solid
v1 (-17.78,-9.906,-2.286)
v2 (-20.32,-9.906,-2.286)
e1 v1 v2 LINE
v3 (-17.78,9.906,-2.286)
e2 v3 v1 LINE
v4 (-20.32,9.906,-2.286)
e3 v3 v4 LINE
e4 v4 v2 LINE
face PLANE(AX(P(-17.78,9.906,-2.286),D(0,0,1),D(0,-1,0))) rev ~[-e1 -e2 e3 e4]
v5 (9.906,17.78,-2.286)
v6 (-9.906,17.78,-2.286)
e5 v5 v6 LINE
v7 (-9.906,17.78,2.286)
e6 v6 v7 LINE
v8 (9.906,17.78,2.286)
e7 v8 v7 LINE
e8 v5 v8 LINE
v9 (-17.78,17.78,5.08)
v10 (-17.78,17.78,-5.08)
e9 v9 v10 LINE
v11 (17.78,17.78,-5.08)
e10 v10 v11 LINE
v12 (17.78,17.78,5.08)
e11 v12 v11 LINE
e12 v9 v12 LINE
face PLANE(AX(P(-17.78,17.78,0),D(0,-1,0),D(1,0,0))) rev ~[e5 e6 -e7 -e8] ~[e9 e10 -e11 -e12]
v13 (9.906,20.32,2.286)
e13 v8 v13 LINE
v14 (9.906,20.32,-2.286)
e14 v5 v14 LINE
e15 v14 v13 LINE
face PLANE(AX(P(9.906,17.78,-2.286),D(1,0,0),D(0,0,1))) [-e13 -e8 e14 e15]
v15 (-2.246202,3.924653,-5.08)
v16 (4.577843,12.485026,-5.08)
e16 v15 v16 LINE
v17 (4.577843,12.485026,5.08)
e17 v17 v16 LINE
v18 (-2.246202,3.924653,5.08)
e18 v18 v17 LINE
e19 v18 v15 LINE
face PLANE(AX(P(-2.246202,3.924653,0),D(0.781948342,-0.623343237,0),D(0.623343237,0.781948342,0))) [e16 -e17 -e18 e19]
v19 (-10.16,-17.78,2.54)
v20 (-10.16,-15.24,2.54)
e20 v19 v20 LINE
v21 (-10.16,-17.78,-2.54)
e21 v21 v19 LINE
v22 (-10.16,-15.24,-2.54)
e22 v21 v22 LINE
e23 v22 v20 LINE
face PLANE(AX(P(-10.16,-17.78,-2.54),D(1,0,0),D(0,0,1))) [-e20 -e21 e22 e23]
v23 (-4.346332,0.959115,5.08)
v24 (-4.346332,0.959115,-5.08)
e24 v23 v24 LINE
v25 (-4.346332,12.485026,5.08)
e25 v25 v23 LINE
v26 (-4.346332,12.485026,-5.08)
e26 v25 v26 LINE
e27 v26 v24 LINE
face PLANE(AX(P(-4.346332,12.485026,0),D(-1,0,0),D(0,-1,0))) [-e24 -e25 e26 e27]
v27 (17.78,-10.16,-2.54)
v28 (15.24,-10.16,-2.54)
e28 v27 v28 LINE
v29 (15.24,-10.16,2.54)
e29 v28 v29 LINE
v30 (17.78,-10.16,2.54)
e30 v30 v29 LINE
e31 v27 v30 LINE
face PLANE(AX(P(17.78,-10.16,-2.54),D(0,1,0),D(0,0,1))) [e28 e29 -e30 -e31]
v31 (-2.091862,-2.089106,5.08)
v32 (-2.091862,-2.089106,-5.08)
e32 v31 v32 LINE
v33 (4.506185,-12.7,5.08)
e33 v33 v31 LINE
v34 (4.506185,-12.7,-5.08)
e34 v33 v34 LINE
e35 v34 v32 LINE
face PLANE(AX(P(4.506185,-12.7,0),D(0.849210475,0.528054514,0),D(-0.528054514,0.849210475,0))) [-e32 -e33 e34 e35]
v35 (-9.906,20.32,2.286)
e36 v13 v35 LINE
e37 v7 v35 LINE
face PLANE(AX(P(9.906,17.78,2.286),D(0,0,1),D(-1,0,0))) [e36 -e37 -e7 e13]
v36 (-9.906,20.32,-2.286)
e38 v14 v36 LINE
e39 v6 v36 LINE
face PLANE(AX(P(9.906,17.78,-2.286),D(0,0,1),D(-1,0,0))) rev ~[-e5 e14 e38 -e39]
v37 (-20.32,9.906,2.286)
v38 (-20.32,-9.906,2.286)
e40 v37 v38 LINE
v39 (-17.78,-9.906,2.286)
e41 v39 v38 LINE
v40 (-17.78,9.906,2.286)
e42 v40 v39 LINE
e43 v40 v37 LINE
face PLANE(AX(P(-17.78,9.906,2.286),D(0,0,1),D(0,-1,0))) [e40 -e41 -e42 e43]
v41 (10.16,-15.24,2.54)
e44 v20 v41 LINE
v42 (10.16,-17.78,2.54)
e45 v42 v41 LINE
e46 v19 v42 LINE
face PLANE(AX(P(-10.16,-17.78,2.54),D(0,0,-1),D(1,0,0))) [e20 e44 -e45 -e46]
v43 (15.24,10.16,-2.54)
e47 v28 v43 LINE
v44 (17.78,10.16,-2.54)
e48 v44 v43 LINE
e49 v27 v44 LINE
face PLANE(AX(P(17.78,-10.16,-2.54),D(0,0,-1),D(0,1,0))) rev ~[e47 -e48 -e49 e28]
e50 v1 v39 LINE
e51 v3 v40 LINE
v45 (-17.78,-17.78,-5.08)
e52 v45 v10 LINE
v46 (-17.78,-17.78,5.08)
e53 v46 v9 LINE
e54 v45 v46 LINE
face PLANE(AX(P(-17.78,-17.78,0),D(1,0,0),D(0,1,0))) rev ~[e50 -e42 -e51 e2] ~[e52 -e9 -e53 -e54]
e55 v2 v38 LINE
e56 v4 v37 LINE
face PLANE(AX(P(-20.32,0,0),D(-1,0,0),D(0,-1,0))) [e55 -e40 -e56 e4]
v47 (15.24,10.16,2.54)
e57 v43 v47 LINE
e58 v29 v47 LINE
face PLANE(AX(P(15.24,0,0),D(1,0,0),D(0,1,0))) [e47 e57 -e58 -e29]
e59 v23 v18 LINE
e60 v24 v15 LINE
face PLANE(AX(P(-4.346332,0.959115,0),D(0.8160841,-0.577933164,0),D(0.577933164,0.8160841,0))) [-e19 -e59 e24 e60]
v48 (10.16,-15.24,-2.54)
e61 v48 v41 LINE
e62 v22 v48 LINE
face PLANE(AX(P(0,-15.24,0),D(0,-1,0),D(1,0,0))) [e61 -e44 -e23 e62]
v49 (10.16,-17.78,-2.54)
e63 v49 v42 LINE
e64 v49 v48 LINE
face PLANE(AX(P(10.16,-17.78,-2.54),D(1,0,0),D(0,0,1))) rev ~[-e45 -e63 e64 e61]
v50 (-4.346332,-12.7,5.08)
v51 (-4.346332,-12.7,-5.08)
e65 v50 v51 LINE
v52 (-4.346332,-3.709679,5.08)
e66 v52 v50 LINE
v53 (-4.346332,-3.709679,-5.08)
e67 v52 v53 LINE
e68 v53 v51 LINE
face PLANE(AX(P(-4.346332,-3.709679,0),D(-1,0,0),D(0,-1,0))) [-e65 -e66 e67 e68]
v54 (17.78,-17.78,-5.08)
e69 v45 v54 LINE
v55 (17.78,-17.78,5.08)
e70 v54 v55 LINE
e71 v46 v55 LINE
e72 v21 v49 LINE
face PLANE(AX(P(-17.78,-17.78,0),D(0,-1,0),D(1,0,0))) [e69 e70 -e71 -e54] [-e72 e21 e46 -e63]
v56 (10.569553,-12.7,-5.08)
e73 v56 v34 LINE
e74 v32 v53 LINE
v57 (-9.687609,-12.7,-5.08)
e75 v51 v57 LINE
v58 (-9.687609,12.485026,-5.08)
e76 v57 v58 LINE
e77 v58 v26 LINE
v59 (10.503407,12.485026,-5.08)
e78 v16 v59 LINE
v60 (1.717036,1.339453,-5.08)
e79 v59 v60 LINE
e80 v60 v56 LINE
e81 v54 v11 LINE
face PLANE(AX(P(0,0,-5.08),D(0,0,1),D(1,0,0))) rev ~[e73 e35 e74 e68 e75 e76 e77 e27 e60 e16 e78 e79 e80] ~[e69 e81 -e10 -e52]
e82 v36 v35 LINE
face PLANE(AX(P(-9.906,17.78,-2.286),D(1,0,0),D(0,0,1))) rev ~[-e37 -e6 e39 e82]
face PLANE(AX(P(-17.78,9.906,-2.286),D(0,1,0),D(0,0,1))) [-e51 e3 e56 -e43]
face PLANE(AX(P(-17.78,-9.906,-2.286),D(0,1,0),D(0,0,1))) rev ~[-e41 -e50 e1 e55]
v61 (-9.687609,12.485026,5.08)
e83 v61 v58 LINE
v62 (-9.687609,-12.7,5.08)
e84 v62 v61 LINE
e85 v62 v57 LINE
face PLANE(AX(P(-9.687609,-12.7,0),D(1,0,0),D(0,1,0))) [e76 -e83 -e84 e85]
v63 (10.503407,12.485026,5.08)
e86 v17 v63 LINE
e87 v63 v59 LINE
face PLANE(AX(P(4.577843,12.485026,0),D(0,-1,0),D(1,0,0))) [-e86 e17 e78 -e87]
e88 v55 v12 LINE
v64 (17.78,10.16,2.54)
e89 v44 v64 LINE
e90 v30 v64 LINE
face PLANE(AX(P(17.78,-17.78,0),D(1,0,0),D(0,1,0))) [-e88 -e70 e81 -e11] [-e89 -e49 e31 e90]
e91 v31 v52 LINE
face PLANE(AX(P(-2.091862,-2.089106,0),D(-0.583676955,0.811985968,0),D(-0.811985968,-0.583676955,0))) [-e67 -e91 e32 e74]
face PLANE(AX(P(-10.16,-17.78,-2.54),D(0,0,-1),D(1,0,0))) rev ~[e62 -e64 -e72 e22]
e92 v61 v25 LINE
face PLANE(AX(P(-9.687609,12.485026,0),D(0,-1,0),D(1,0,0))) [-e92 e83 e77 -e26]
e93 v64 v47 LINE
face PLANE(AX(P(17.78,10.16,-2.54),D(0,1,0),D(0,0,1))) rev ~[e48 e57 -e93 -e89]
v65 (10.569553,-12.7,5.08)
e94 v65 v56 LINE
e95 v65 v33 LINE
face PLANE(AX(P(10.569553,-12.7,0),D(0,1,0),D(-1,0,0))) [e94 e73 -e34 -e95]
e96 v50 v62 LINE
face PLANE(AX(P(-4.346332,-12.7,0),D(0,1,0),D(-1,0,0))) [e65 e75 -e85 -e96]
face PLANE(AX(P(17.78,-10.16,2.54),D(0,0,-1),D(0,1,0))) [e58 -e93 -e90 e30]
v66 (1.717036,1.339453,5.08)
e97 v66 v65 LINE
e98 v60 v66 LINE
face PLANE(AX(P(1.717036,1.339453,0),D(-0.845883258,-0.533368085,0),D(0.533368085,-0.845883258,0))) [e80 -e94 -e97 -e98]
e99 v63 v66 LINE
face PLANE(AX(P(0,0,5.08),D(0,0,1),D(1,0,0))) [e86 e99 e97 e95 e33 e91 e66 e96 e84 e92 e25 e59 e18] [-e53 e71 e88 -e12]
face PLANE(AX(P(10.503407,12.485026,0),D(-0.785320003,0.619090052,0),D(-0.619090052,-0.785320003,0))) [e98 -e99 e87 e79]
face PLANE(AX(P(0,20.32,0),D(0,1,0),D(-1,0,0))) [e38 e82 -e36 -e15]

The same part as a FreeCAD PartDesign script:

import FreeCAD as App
import Part
import Sketcher
from FreeCAD import Vector
Q = App.Units.Quantity


def add_polygon(sketch, points):
    """Adds a closed chain of lines whose ends are joined by coincident constraints."""
    first, n = sketch.GeometryCount, len(points)
    for a, b in zip(points, points[1:] + points[:1]):
        sketch.addGeometry(Part.LineSegment(App.Vector(*a, 0), App.Vector(*b, 0)), False)
    for i in range(n):
        sketch.addConstraint(Sketcher.Constraint("Coincident", first + i, 2, first + (i + 1) % n, 1))

doc = App.newDocument("Part")
params = doc.addObject("Spreadsheet::Sheet", "Params")
for row, (alias, value) in enumerate([
    ("sketch1_width", "1.4 in"),
    ("pad1_length", "0.4 in"),
    ("sketch2_width", "0.78 in"),
    ("sketch2_height", "0.18 in"),
    ("pad2_length", "0.1 in"),
    ("sketch3_width", "0.78 in"),
    ("sketch3_height", "0.18 in"),
    ("pad3_length", "0.1 in"),
    ("sketch4_width", "0.8 in"),
    ("sketch4_height", "0.2 in"),
    ("pocket1_length", "0.1 in"),
    ("sketch5_width", "0.8 in"),
    ("sketch5_height", "0.2 in"),
    ("pocket2_length", "0.1 in"),
], start=1):
    params.set(f"A{row}", alias)
    params.set(f"B{row}", "=" + value)
    params.setAlias(f"B{row}", alias)

body = doc.addObject("PartDesign::Body", "Body")

# Sketch on XY plane
sketch1 = doc.addObject("Sketcher::SketchObject", "Sketch")
body.addObject(sketch1)
sketch1.AttachmentSupport = (doc.XY_Plane, [""])
sketch1.MapMode = "FlatFace"
add_polygon(sketch1, [(-17.78, 17.78), (-17.78, -17.78), (17.78, -17.78), (17.78, 17.78)])  # lines 0-3
add_polygon(sketch1, [(10.503407, 12.485026), (1.717036, 1.339453), (10.569553, -12.7), (4.506185, -12.7), (-2.091862, -2.089106), (-4.346332, -3.709679), (-4.346332, -12.7), (-9.687609, -12.7), (-9.687609, 12.485026), (-4.346332, 12.485026), (-4.346332, 0.959115), (-2.246202, 3.924653), (4.577843, 12.485026)])  # lines 4-16
sketch1.addConstraint(Sketcher.Constraint("Vertical", 0))
sketch1.addConstraint(Sketcher.Constraint("Horizontal", 1))
sketch1.addConstraint(Sketcher.Constraint("Vertical", 2))
sketch1.addConstraint(Sketcher.Constraint("Horizontal", 3))
sketch1.addConstraint(Sketcher.Constraint("Horizontal", 6))
sketch1.addConstraint(Sketcher.Constraint("Vertical", 9))
sketch1.addConstraint(Sketcher.Constraint("Horizontal", 10))
sketch1.addConstraint(Sketcher.Constraint("Vertical", 11))
sketch1.addConstraint(Sketcher.Constraint("Horizontal", 12))
sketch1.addConstraint(Sketcher.Constraint("Vertical", 13))
sketch1.addConstraint(Sketcher.Constraint("Horizontal", 16))
sketch1.addConstraint(Sketcher.Constraint("Symmetric", 0, 2, 2, 2, -1, 1))
sketch1.addConstraint(Sketcher.Constraint("Horizontal", 6, 2, 9, 2))
sketch1.addConstraint(Sketcher.Constraint("Horizontal", 12, 2, 15, 2))
sketch1.addConstraint(Sketcher.Constraint("Vertical", 9, 2, 12, 2))
sketch1.addConstraint(Sketcher.Constraint("Equal", 3, 0))
sketch1.addConstraint(Sketcher.Constraint("DistanceX", 1, 1, 1, 2, Q("1.4 in")))
sketch1.addConstraint(Sketcher.Constraint("DistanceY", 5, 2, -1, 1, Q("0.5 in")))
sketch1.addConstraint(Sketcher.Constraint("DistanceX", -1, 1, 4, 2, Q("0.0675998 in")))
sketch1.addConstraint(Sketcher.Constraint("DistanceX", 6, 2, 6, 1, 6.063368))
sketch1.addConstraint(Sketcher.Constraint("DistanceY", 9, 2, 9, 1, 8.990321))
sketch1.addConstraint(Sketcher.Constraint("DistanceY", 13, 2, 13, 1, 11.525911))
sketch1.addConstraint(Sketcher.Constraint("DistanceY", 4, 2, 14, 2, 2.5852))
sketch1.addConstraint(Sketcher.Constraint("Distance", 5, 16.597389))
sketch1.addConstraint(Sketcher.Constraint("Distance", 7, 12.495011))
sketch1.addConstraint(Sketcher.Constraint("Distance", 8, 2.776489))
sketch1.addConstraint(Sketcher.Constraint("DistanceX", 10, 2, 10, 1, 5.341276))
sketch1.addConstraint(Sketcher.Constraint("DistanceX", 16, 1, 16, 2, 5.925564))
sketch1.addConstraint(Sketcher.Constraint("DistanceY", 11, 1, 11, 2, 25.185026))
sketch1.addConstraint(Sketcher.Constraint("DistanceX", 7, 2, -1, 1, 2.091862))
sketch1.addConstraint(Sketcher.Constraint("DistanceX", 10, 2, -1, 1, 9.687609))
sketch1.addConstraint(Sketcher.Constraint("DistanceX", 13, 2, 14, 2, 2.10013))
sketch1.addConstraint(Sketcher.Constraint("DistanceX", 11, 2, 15, 2, 14.265451))
sketch1.setExpression("Constraints[33]", "Params.sketch1_width")
pad1 = doc.addObject("PartDesign::Pad", "Pad")
body.addObject(pad1)
pad1.Profile = sketch1
pad1.setExpression("Length", "Params.pad1_length")
pad1.Midplane = True

# Sketch on XZ plane
sketch2 = doc.addObject("Sketcher::SketchObject", "Sketch001")
body.addObject(sketch2)
sketch2.AttachmentSupport = (doc.XZ_Plane, [""])
sketch2.MapMode = "FlatFace"
sketch2.AttachmentOffset = App.Placement(Vector(0, 0, -0.7 * 25.4), App.Rotation())
add_polygon(sketch2, [(9.906, 2.286), (9.906, -2.286), (-9.906, -2.286), (-9.906, 2.286)])  # lines 0-3
sketch2.addConstraint(Sketcher.Constraint("Vertical", 0))
sketch2.addConstraint(Sketcher.Constraint("Horizontal", 1))
sketch2.addConstraint(Sketcher.Constraint("Vertical", 2))
sketch2.addConstraint(Sketcher.Constraint("Horizontal", 3))
sketch2.addConstraint(Sketcher.Constraint("Symmetric", 0, 2, 2, 2, -1, 1))
sketch2.addConstraint(Sketcher.Constraint("DistanceX", 1, 2, 1, 1, Q("0.78 in")))
sketch2.addConstraint(Sketcher.Constraint("DistanceY", 0, 2, 0, 1, Q("0.18 in")))
sketch2.setExpression("Constraints[9]", "Params.sketch2_width")
sketch2.setExpression("Constraints[10]", "Params.sketch2_height")
pad2 = doc.addObject("PartDesign::Pad", "Pad001")
body.addObject(pad2)
pad2.Profile = sketch2
pad2.setExpression("Length", "Params.pad2_length")
pad2.Reversed = True

# Sketch on YZ plane
sketch3 = doc.addObject("Sketcher::SketchObject", "Sketch002")
body.addObject(sketch3)
sketch3.AttachmentSupport = (doc.YZ_Plane, [""])
sketch3.MapMode = "FlatFace"
sketch3.AttachmentOffset = App.Placement(Vector(0, 0, -0.7 * 25.4), App.Rotation())
add_polygon(sketch3, [(9.906, 2.286), (9.906, -2.286), (-9.906, -2.286), (-9.906, 2.286)])  # lines 0-3
sketch3.addConstraint(Sketcher.Constraint("Vertical", 0))
sketch3.addConstraint(Sketcher.Constraint("Horizontal", 1))
sketch3.addConstraint(Sketcher.Constraint("Vertical", 2))
sketch3.addConstraint(Sketcher.Constraint("Horizontal", 3))
sketch3.addConstraint(Sketcher.Constraint("Symmetric", 0, 2, 2, 2, -1, 1))
sketch3.addConstraint(Sketcher.Constraint("DistanceX", 1, 2, 1, 1, Q("0.78 in")))
sketch3.addConstraint(Sketcher.Constraint("DistanceY", 0, 2, 0, 1, Q("0.18 in")))
sketch3.setExpression("Constraints[9]", "Params.sketch3_width")
sketch3.setExpression("Constraints[10]", "Params.sketch3_height")
pad3 = doc.addObject("PartDesign::Pad", "Pad002")
body.addObject(pad3)
pad3.Profile = sketch3
pad3.setExpression("Length", "Params.pad3_length")
pad3.Reversed = True

# Sketch on XZ plane
sketch4 = doc.addObject("Sketcher::SketchObject", "Sketch003")
body.addObject(sketch4)
sketch4.AttachmentSupport = (doc.XZ_Plane, [""])
sketch4.MapMode = "FlatFace"
sketch4.AttachmentOffset = App.Placement(Vector(0, 0, 0.7 * 25.4), App.Rotation())
add_polygon(sketch4, [(-10.16, 2.54), (-10.16, -2.54), (10.16, -2.54), (10.16, 2.54)])  # lines 0-3
sketch4.addConstraint(Sketcher.Constraint("Vertical", 0))
sketch4.addConstraint(Sketcher.Constraint("Horizontal", 1))
sketch4.addConstraint(Sketcher.Constraint("Vertical", 2))
sketch4.addConstraint(Sketcher.Constraint("Horizontal", 3))
sketch4.addConstraint(Sketcher.Constraint("Symmetric", 0, 2, 2, 2, -1, 1))
sketch4.addConstraint(Sketcher.Constraint("DistanceX", 1, 1, 1, 2, Q("0.8 in")))
sketch4.addConstraint(Sketcher.Constraint("DistanceY", 0, 2, 0, 1, Q("0.2 in")))
sketch4.setExpression("Constraints[9]", "Params.sketch4_width")
sketch4.setExpression("Constraints[10]", "Params.sketch4_height")
pocket1 = doc.addObject("PartDesign::Pocket", "Pocket")
body.addObject(pocket1)
pocket1.Profile = sketch4
pocket1.setExpression("Length", "Params.pocket1_length")

# Sketch on YZ plane
sketch5 = doc.addObject("Sketcher::SketchObject", "Sketch004")
body.addObject(sketch5)
sketch5.AttachmentSupport = (doc.YZ_Plane, [""])
sketch5.MapMode = "FlatFace"
sketch5.AttachmentOffset = App.Placement(Vector(0, 0, 0.7 * 25.4), App.Rotation())
add_polygon(sketch5, [(-10.16, 2.54), (-10.16, -2.54), (10.16, -2.54), (10.16, 2.54)])  # lines 0-3
sketch5.addConstraint(Sketcher.Constraint("Vertical", 0))
sketch5.addConstraint(Sketcher.Constraint("Horizontal", 1))
sketch5.addConstraint(Sketcher.Constraint("Vertical", 2))
sketch5.addConstraint(Sketcher.Constraint("Horizontal", 3))
sketch5.addConstraint(Sketcher.Constraint("Symmetric", 0, 2, 2, 2, -1, 1))
sketch5.addConstraint(Sketcher.Constraint("DistanceX", 1, 1, 1, 2, Q("0.8 in")))
sketch5.addConstraint(Sketcher.Constraint("DistanceY", 0, 2, 0, 1, Q("0.2 in")))
sketch5.setExpression("Constraints[9]", "Params.sketch5_width")
sketch5.setExpression("Constraints[10]", "Params.sketch5_height")
pocket2 = doc.addObject("PartDesign::Pocket", "Pocket001")
body.addObject(pocket2)
pocket2.Profile = sketch5
pocket2.setExpression("Length", "Params.pocket2_length")

doc.recompute()
